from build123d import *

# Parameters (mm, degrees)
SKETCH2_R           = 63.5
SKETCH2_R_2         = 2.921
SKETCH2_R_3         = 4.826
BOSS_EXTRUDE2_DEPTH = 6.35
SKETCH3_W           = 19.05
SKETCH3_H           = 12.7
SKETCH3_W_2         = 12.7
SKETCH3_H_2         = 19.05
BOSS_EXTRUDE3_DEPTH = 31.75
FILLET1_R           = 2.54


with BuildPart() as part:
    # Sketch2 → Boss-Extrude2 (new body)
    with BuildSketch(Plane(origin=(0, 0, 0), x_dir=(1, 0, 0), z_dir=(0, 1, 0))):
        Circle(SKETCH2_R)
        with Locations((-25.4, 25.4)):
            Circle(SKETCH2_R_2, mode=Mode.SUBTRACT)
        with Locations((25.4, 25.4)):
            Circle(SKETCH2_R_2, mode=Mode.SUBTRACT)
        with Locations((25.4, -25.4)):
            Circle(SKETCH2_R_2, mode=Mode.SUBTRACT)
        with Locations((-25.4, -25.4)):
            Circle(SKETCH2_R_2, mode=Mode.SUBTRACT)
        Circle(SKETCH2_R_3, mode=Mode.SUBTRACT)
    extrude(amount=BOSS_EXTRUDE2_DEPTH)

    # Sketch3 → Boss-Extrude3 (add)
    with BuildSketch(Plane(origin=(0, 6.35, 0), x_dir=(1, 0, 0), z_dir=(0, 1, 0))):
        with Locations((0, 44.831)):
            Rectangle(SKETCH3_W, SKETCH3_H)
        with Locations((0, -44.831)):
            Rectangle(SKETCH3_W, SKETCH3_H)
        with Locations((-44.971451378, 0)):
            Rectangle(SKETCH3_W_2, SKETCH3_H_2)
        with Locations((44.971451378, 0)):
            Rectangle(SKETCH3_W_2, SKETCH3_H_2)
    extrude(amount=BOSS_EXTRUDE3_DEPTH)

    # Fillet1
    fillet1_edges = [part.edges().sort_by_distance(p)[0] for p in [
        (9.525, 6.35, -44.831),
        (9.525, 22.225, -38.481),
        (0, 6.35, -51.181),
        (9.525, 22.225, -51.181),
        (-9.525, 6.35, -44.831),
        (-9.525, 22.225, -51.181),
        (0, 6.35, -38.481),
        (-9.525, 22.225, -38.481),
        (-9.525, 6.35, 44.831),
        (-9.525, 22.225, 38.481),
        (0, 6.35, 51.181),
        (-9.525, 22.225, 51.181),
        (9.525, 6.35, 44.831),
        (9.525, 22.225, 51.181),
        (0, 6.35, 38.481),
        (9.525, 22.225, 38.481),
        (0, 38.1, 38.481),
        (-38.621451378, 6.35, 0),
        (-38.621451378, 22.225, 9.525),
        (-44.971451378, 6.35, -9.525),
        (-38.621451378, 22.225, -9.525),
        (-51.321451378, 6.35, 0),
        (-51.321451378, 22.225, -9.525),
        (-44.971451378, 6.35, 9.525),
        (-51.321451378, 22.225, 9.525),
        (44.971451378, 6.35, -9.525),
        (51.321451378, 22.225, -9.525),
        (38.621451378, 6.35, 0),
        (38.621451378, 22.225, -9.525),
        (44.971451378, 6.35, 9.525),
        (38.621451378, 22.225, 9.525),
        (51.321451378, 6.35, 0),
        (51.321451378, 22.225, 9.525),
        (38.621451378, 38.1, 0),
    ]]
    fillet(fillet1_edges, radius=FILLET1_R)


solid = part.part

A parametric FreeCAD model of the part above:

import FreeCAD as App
import Part
import Sketcher
from FreeCAD import Vector
Q = App.Units.Quantity


def edges_at(feature, points):
    """Names of the edges that pass closest to the given points."""
    edges = feature.Shape.Edges
    near = lambda p: min(range(len(edges)), key=lambda i: edges[i].distToShape(Part.Vertex(*p))[0])
    return sorted({f"Edge{near(p) + 1}" for p in points})

doc = App.newDocument("Part")
params = doc.addObject("Spreadsheet::Sheet", "Params")
for row, (alias, value) in enumerate([
    ("sketch1_diameter", "5 in"),
    ("sketch1_diameter2", "0.23 in"),
    ("sketch1_diameter3", "0.38 in"),
    ("pad1_length", "0.25 in"),
    ("sketch2_width", "0.5 in"),
    ("sketch2_width2", "0.75 in"),
    ("pad2_length", "1.25 in"),
    ("fillet_radius", "0.1 in"),
], start=1):
    params.set(f"A{row}", alias)
    params.set(f"B{row}", "=" + value)
    params.setAlias(f"B{row}", alias)

body = doc.addObject("PartDesign::Body", "Body")

sketch1 = doc.addObject("Sketcher::SketchObject", "Sketch")
body.addObject(sketch1)
sketch1.AttachmentSupport = (doc.XZ_Plane, [""])
sketch1.MapMode = "FlatFace"
sketch1.addGeometry(Part.Circle(Vector(0, 0, 0), Vector(0, 0, 1), 63.5), False)
sketch1.addGeometry(Part.Circle(Vector(-25.4, 25.4, 0), Vector(0, 0, 1), 2.921), False)
sketch1.addGeometry(Part.Circle(Vector(25.4, 25.4, 0), Vector(0, 0, 1), 2.921), False)
sketch1.addGeometry(Part.Circle(Vector(-25.4, -25.4, 0), Vector(0, 0, 1), 2.921), False)
sketch1.addGeometry(Part.Circle(Vector(0, 0, 0), Vector(0, 0, 1), 4.826), False)
sketch1.addGeometry(Part.Circle(Vector(25.4, -25.4, 0), Vector(0, 0, 1), 2.921), False)
sketch1.addConstraint(Sketcher.Constraint("Coincident", 0, 3, -1, 1))
sketch1.addConstraint(Sketcher.Constraint("Coincident", 4, 3, -1, 1))
sketch1.addConstraint(Sketcher.Constraint("Equal", 1, 2))
sketch1.addConstraint(Sketcher.Constraint("Equal", 2, 3))
sketch1.addConstraint(Sketcher.Constraint("Equal", 3, 5))
sketch1.addConstraint(Sketcher.Constraint("Symmetric", 2, 3, 3, 3, -1, 1))
sketch1.addConstraint(Sketcher.Constraint("Symmetric", 1, 3, 5, 3, -1, 1))
sketch1.addConstraint(Sketcher.Constraint("Symmetric", 1, 3, 2, 3, -2))
sketch1.addConstraint(Sketcher.Constraint("Diameter", 0, Q("5 in")))
sketch1.addConstraint(Sketcher.Constraint("Diameter", 1, Q("0.23 in")))
sketch1.addConstraint(Sketcher.Constraint("Diameter", 4, Q("0.38 in")))
sketch1.addConstraint(Sketcher.Constraint("DistanceX", 1, 3, -1, 1, Q("1 in")))
sketch1.addConstraint(Sketcher.Constraint("DistanceY", -1, 1, 1, 3, Q("1 in")))
sketch1.setExpression("Constraints[8]", "Params.sketch1_diameter")
sketch1.setExpression("Constraints[9]", "Params.sketch1_diameter2")
sketch1.setExpression("Constraints[10]", "Params.sketch1_diameter3")
pad1 = doc.addObject("PartDesign::Pad", "Pad")
body.addObject(pad1)
pad1.Profile = sketch1
pad1.setExpression("Length", "Params.pad1_length")
pad1.Reversed = True

sketch2 = doc.addObject("Sketcher::SketchObject", "Sketch001")
body.addObject(sketch2)
sketch2.AttachmentSupport = (doc.XZ_Plane, [""])
sketch2.MapMode = "FlatFace"
sketch2.AttachmentOffset = App.Placement(Vector(0, 0, -0.25 * 25.4), App.Rotation())
sketch2.addGeometry(Part.LineSegment(Vector(-9.525, -51.181, 0), Vector(-9.525, -38.481, 0)), False)
sketch2.addGeometry(Part.LineSegment(Vector(-9.525, -38.481, 0), Vector(9.525, -38.481, 0)), False)
sketch2.addGeometry(Part.LineSegment(Vector(9.525, -38.481, 0), Vector(9.525, -51.181, 0)), False)
sketch2.addGeometry(Part.LineSegment(Vector(9.525, -51.181, 0), Vector(-9.525, -51.181, 0)), False)
sketch2.addGeometry(Part.LineSegment(Vector(-9.525, 38.481, 0), Vector(-9.525, 51.181, 0)), False)
sketch2.addGeometry(Part.LineSegment(Vector(-9.525, 51.181, 0), Vector(9.525, 51.181, 0)), False)
sketch2.addGeometry(Part.LineSegment(Vector(9.525, 51.181, 0), Vector(9.525, 38.481, 0)), False)
sketch2.addGeometry(Part.LineSegment(Vector(9.525, 38.481, 0), Vector(-9.525, 38.481, 0)), False)
sketch2.addGeometry(Part.LineSegment(Vector(-51.321451, -9.525, 0), Vector(-51.321451, 9.525, 0)), False)
sketch2.addGeometry(Part.LineSegment(Vector(-51.321451, 9.525, 0), Vector(-38.621451, 9.525, 0)), False)
sketch2.addGeometry(Part.LineSegment(Vector(-38.621451, 9.525, 0), Vector(-38.621451, -9.525, 0)), False)
sketch2.addGeometry(Part.LineSegment(Vector(-38.621451, -9.525, 0), Vector(-51.321451, -9.525, 0)), False)
sketch2.addGeometry(Part.LineSegment(Vector(38.621451, -9.525, 0), Vector(38.621451, 9.525, 0)), False)
sketch2.addGeometry(Part.LineSegment(Vector(38.621451, 9.525, 0), Vector(51.321451, 9.525, 0)), False)
sketch2.addGeometry(Part.LineSegment(Vector(51.321451, 9.525, 0), Vector(51.321451, -9.525, 0)), False)
sketch2.addGeometry(Part.LineSegment(Vector(51.321451, -9.525, 0), Vector(38.621451, -9.525, 0)), False)
sketch2.addConstraint(Sketcher.Constraint("Coincident", 0, 2, 1, 1))
sketch2.addConstraint(Sketcher.Constraint("Coincident", 1, 2, 2, 1))
sketch2.addConstraint(Sketcher.Constraint("Coincident", 2, 2, 3, 1))
sketch2.addConstraint(Sketcher.Constraint("Coincident", 3, 2, 0, 1))
sketch2.addConstraint(Sketcher.Constraint("Coincident", 4, 2, 5, 1))
sketch2.addConstraint(Sketcher.Constraint("Coincident", 5, 2, 6, 1))
sketch2.addConstraint(Sketcher.Constraint("Coincident", 6, 2, 7, 1))
sketch2.addConstraint(Sketcher.Constraint("Coincident", 7, 2, 4, 1))
sketch2.addConstraint(Sketcher.Constraint("Coincident", 8, 2, 9, 1))
sketch2.addConstraint(Sketcher.Constraint("Coincident", 9, 2, 10, 1))
sketch2.addConstraint(Sketcher.Constraint("Coincident", 10, 2, 11, 1))
sketch2.addConstraint(Sketcher.Constraint("Coincident", 11, 2, 8, 1))
sketch2.addConstraint(Sketcher.Constraint("Coincident", 12, 2, 13, 1))
sketch2.addConstraint(Sketcher.Constraint("Coincident", 13, 2, 14, 1))
sketch2.addConstraint(Sketcher.Constraint("Coincident", 14, 2, 15, 1))
sketch2.addConstraint(Sketcher.Constraint("Coincident", 15, 2, 12, 1))
sketch2.addConstraint(Sketcher.Constraint("Vertical", 0))
sketch2.addConstraint(Sketcher.Constraint("Horizontal", 1))
sketch2.addConstraint(Sketcher.Constraint("Vertical", 2))
sketch2.addConstraint(Sketcher.Constraint("Horizontal", 3))
sketch2.addConstraint(Sketcher.Constraint("Vertical", 4))
sketch2.addConstraint(Sketcher.Constraint("Horizontal", 5))
sketch2.addConstraint(Sketcher.Constraint("Vertical", 6))
sketch2.addConstraint(Sketcher.Constraint("Horizontal", 7))
sketch2.addConstraint(Sketcher.Constraint("Vertical", 8))
sketch2.addConstraint(Sketcher.Constraint("Horizontal", 9))
sketch2.addConstraint(Sketcher.Constraint("Vertical", 10))
sketch2.addConstraint(Sketcher.Constraint("Horizontal", 11))
sketch2.addConstraint(Sketcher.Constraint("Vertical", 12))
sketch2.addConstraint(Sketcher.Constraint("Horizontal", 13))
sketch2.addConstraint(Sketcher.Constraint("Vertical", 14))
sketch2.addConstraint(Sketcher.Constraint("Horizontal", 15))
sketch2.addConstraint(Sketcher.Constraint("Symmetric", 2, 2, 4, 2, -1, 1))
sketch2.addConstraint(Sketcher.Constraint("Symmetric", 0, 2, 6, 2, -1, 1))
sketch2.addConstraint(Sketcher.Constraint("Symmetric", 10, 2, 12, 2, -1, 1))
sketch2.addConstraint(Sketcher.Constraint("Symmetric", 8, 2, 14, 2, -1, 1))
sketch2.addConstraint(Sketcher.Constraint("Horizontal", 9, 2, 12, 2))
sketch2.addConstraint(Sketcher.Constraint("Vertical", 3, 2, 4, 2))
sketch2.addConstraint(Sketcher.Constraint("Equal", 15, 0))
sketch2.addConstraint(Sketcher.Constraint("Equal", 7, 8))
sketch2.addConstraint(Sketcher.Constraint("DistanceX", 9, 1, 9, 2, Q("0.5 in")))
sketch2.addConstraint(Sketcher.Constraint("DistanceX", 1, 1, 1, 2, Q("0.75 in")))
sketch2.addConstraint(Sketcher.Constraint("DistanceY", 0, 2, 4, 2, Q("3.53 in")))
sketch2.addConstraint(Sketcher.Constraint("DistanceX", 8, 2, -1, 1, 51.321451))
sketch2.setExpression("Constraints[40]", "Params.sketch2_width")
sketch2.setExpression("Constraints[41]", "Params.sketch2_width2")
pad2 = doc.addObject("PartDesign::Pad", "Pad001")
body.addObject(pad2)
pad2.Profile = sketch2
pad2.setExpression("Length", "Params.pad2_length")
pad2.Reversed = True
doc.recompute()

fillet = doc.addObject("PartDesign::Fillet", "Fillet")
body.addObject(fillet)
fillet.Base = (pad2, edges_at(pad2, [
    (9.525, 6.35, -44.831),
    (9.525, 22.225, -38.481),
    (0, 6.35, -51.181),
    (9.525, 22.225, -51.181),
    (-9.525, 6.35, -44.831),
    (-9.525, 22.225, -51.181),
    (0, 6.35, -38.481),
    (-9.525, 22.225, -38.481),
    (-9.525, 6.35, 44.831),
    (-9.525, 22.225, 38.481),
    (0, 6.35, 51.181),
    (-9.525, 22.225, 51.181),
    (9.525, 6.35, 44.831),
    (9.525, 22.225, 51.181),
    (0, 6.35, 38.481),
    (9.525, 22.225, 38.481),
    (0, 38.1, 38.481),
    (-38.621, 6.35, 0),
    (-38.621, 22.225, 9.525),
    (-44.971, 6.35, -9.525),
    (-38.621, 22.225, -9.525),
    (-51.321, 6.35, 0),
    (-51.321, 22.225, -9.525),
    (-44.971, 6.35, 9.525),
    (-51.321, 22.225, 9.525),
    (44.971, 6.35, -9.525),
    (51.321, 22.225, -9.525),
    (38.621, 6.35, 0),
    (38.621, 22.225, -9.525),
    (44.971, 6.35, 9.525),
    (38.621, 22.225, 9.525),
    (51.321, 6.35, 0),
    (51.321, 22.225, 9.525),
    (38.621, 38.1, 0),
]))
fillet.setExpression("Radius", "Params.fillet_radius")

doc.recompute()
